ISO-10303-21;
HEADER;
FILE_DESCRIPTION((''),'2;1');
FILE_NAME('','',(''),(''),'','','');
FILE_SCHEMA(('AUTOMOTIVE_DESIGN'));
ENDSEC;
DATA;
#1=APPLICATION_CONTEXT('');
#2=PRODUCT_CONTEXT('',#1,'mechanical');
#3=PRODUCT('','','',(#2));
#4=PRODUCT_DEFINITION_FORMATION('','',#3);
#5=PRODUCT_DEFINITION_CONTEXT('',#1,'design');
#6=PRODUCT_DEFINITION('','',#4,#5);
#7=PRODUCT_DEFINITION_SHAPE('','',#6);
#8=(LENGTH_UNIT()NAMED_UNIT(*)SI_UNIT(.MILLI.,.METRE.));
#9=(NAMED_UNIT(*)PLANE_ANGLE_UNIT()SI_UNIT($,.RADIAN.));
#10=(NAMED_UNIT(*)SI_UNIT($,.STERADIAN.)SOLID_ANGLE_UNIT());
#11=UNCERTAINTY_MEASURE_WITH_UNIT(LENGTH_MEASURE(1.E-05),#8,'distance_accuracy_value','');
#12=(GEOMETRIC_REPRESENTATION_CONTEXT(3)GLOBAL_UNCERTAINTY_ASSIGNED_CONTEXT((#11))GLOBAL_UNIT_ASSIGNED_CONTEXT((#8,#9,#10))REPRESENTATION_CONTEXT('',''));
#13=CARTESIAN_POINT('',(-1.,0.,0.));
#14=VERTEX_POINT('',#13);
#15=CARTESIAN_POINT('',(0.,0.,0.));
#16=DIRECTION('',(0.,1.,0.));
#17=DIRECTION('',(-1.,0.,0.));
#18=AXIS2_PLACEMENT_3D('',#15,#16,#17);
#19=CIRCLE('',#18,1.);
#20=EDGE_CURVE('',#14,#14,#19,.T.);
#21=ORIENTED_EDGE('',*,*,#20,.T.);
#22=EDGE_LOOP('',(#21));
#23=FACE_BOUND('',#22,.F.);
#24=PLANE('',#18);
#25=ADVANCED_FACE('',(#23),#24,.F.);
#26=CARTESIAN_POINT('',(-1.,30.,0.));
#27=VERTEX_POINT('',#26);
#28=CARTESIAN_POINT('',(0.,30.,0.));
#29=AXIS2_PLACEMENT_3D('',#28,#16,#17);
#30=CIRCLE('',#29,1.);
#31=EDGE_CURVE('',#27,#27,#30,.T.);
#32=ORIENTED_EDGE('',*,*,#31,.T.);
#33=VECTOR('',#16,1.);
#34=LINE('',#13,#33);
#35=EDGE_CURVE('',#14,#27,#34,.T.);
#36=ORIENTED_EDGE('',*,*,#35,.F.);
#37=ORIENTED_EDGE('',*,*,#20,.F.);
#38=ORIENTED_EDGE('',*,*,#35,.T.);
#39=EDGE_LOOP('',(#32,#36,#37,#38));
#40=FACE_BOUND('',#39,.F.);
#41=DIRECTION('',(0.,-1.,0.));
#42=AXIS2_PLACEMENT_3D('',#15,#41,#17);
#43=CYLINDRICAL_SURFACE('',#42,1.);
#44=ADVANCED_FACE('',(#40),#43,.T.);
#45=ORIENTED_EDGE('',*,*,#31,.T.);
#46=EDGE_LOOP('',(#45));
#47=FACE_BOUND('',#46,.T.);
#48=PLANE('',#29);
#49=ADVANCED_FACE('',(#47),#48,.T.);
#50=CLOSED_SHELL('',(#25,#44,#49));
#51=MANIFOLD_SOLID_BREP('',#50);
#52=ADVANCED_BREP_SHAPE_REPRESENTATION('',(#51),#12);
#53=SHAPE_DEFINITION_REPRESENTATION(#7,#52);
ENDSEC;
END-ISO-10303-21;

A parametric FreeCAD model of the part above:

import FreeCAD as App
import Part
import Sketcher

doc = App.newDocument("Part")
body = doc.addObject("PartDesign::Body", "Body")

# Sketch on XZ plane
sketch1 = body.newObject("Sketcher::SketchObject", "Sketch")
sketch1.AttachmentSupport = (doc.getObject("XZ_Plane"), [""])
sketch1.MapMode = "FlatFace"
sketch1.addGeometry(Part.Circle(App.Vector(0, 0, 0), App.Vector(0, 0, 1), 1), False)
sketch1.addConstraint([
    Sketcher.Constraint("Coincident", 0, 3, -1, 1),
    Sketcher.Constraint("Diameter", 0, 2.0),
])
pad1 = body.newObject("PartDesign::Pad", "Pad")
pad1.Profile = sketch1
pad1.Length = 30
pad1.Reversed = True

doc.recompute()
